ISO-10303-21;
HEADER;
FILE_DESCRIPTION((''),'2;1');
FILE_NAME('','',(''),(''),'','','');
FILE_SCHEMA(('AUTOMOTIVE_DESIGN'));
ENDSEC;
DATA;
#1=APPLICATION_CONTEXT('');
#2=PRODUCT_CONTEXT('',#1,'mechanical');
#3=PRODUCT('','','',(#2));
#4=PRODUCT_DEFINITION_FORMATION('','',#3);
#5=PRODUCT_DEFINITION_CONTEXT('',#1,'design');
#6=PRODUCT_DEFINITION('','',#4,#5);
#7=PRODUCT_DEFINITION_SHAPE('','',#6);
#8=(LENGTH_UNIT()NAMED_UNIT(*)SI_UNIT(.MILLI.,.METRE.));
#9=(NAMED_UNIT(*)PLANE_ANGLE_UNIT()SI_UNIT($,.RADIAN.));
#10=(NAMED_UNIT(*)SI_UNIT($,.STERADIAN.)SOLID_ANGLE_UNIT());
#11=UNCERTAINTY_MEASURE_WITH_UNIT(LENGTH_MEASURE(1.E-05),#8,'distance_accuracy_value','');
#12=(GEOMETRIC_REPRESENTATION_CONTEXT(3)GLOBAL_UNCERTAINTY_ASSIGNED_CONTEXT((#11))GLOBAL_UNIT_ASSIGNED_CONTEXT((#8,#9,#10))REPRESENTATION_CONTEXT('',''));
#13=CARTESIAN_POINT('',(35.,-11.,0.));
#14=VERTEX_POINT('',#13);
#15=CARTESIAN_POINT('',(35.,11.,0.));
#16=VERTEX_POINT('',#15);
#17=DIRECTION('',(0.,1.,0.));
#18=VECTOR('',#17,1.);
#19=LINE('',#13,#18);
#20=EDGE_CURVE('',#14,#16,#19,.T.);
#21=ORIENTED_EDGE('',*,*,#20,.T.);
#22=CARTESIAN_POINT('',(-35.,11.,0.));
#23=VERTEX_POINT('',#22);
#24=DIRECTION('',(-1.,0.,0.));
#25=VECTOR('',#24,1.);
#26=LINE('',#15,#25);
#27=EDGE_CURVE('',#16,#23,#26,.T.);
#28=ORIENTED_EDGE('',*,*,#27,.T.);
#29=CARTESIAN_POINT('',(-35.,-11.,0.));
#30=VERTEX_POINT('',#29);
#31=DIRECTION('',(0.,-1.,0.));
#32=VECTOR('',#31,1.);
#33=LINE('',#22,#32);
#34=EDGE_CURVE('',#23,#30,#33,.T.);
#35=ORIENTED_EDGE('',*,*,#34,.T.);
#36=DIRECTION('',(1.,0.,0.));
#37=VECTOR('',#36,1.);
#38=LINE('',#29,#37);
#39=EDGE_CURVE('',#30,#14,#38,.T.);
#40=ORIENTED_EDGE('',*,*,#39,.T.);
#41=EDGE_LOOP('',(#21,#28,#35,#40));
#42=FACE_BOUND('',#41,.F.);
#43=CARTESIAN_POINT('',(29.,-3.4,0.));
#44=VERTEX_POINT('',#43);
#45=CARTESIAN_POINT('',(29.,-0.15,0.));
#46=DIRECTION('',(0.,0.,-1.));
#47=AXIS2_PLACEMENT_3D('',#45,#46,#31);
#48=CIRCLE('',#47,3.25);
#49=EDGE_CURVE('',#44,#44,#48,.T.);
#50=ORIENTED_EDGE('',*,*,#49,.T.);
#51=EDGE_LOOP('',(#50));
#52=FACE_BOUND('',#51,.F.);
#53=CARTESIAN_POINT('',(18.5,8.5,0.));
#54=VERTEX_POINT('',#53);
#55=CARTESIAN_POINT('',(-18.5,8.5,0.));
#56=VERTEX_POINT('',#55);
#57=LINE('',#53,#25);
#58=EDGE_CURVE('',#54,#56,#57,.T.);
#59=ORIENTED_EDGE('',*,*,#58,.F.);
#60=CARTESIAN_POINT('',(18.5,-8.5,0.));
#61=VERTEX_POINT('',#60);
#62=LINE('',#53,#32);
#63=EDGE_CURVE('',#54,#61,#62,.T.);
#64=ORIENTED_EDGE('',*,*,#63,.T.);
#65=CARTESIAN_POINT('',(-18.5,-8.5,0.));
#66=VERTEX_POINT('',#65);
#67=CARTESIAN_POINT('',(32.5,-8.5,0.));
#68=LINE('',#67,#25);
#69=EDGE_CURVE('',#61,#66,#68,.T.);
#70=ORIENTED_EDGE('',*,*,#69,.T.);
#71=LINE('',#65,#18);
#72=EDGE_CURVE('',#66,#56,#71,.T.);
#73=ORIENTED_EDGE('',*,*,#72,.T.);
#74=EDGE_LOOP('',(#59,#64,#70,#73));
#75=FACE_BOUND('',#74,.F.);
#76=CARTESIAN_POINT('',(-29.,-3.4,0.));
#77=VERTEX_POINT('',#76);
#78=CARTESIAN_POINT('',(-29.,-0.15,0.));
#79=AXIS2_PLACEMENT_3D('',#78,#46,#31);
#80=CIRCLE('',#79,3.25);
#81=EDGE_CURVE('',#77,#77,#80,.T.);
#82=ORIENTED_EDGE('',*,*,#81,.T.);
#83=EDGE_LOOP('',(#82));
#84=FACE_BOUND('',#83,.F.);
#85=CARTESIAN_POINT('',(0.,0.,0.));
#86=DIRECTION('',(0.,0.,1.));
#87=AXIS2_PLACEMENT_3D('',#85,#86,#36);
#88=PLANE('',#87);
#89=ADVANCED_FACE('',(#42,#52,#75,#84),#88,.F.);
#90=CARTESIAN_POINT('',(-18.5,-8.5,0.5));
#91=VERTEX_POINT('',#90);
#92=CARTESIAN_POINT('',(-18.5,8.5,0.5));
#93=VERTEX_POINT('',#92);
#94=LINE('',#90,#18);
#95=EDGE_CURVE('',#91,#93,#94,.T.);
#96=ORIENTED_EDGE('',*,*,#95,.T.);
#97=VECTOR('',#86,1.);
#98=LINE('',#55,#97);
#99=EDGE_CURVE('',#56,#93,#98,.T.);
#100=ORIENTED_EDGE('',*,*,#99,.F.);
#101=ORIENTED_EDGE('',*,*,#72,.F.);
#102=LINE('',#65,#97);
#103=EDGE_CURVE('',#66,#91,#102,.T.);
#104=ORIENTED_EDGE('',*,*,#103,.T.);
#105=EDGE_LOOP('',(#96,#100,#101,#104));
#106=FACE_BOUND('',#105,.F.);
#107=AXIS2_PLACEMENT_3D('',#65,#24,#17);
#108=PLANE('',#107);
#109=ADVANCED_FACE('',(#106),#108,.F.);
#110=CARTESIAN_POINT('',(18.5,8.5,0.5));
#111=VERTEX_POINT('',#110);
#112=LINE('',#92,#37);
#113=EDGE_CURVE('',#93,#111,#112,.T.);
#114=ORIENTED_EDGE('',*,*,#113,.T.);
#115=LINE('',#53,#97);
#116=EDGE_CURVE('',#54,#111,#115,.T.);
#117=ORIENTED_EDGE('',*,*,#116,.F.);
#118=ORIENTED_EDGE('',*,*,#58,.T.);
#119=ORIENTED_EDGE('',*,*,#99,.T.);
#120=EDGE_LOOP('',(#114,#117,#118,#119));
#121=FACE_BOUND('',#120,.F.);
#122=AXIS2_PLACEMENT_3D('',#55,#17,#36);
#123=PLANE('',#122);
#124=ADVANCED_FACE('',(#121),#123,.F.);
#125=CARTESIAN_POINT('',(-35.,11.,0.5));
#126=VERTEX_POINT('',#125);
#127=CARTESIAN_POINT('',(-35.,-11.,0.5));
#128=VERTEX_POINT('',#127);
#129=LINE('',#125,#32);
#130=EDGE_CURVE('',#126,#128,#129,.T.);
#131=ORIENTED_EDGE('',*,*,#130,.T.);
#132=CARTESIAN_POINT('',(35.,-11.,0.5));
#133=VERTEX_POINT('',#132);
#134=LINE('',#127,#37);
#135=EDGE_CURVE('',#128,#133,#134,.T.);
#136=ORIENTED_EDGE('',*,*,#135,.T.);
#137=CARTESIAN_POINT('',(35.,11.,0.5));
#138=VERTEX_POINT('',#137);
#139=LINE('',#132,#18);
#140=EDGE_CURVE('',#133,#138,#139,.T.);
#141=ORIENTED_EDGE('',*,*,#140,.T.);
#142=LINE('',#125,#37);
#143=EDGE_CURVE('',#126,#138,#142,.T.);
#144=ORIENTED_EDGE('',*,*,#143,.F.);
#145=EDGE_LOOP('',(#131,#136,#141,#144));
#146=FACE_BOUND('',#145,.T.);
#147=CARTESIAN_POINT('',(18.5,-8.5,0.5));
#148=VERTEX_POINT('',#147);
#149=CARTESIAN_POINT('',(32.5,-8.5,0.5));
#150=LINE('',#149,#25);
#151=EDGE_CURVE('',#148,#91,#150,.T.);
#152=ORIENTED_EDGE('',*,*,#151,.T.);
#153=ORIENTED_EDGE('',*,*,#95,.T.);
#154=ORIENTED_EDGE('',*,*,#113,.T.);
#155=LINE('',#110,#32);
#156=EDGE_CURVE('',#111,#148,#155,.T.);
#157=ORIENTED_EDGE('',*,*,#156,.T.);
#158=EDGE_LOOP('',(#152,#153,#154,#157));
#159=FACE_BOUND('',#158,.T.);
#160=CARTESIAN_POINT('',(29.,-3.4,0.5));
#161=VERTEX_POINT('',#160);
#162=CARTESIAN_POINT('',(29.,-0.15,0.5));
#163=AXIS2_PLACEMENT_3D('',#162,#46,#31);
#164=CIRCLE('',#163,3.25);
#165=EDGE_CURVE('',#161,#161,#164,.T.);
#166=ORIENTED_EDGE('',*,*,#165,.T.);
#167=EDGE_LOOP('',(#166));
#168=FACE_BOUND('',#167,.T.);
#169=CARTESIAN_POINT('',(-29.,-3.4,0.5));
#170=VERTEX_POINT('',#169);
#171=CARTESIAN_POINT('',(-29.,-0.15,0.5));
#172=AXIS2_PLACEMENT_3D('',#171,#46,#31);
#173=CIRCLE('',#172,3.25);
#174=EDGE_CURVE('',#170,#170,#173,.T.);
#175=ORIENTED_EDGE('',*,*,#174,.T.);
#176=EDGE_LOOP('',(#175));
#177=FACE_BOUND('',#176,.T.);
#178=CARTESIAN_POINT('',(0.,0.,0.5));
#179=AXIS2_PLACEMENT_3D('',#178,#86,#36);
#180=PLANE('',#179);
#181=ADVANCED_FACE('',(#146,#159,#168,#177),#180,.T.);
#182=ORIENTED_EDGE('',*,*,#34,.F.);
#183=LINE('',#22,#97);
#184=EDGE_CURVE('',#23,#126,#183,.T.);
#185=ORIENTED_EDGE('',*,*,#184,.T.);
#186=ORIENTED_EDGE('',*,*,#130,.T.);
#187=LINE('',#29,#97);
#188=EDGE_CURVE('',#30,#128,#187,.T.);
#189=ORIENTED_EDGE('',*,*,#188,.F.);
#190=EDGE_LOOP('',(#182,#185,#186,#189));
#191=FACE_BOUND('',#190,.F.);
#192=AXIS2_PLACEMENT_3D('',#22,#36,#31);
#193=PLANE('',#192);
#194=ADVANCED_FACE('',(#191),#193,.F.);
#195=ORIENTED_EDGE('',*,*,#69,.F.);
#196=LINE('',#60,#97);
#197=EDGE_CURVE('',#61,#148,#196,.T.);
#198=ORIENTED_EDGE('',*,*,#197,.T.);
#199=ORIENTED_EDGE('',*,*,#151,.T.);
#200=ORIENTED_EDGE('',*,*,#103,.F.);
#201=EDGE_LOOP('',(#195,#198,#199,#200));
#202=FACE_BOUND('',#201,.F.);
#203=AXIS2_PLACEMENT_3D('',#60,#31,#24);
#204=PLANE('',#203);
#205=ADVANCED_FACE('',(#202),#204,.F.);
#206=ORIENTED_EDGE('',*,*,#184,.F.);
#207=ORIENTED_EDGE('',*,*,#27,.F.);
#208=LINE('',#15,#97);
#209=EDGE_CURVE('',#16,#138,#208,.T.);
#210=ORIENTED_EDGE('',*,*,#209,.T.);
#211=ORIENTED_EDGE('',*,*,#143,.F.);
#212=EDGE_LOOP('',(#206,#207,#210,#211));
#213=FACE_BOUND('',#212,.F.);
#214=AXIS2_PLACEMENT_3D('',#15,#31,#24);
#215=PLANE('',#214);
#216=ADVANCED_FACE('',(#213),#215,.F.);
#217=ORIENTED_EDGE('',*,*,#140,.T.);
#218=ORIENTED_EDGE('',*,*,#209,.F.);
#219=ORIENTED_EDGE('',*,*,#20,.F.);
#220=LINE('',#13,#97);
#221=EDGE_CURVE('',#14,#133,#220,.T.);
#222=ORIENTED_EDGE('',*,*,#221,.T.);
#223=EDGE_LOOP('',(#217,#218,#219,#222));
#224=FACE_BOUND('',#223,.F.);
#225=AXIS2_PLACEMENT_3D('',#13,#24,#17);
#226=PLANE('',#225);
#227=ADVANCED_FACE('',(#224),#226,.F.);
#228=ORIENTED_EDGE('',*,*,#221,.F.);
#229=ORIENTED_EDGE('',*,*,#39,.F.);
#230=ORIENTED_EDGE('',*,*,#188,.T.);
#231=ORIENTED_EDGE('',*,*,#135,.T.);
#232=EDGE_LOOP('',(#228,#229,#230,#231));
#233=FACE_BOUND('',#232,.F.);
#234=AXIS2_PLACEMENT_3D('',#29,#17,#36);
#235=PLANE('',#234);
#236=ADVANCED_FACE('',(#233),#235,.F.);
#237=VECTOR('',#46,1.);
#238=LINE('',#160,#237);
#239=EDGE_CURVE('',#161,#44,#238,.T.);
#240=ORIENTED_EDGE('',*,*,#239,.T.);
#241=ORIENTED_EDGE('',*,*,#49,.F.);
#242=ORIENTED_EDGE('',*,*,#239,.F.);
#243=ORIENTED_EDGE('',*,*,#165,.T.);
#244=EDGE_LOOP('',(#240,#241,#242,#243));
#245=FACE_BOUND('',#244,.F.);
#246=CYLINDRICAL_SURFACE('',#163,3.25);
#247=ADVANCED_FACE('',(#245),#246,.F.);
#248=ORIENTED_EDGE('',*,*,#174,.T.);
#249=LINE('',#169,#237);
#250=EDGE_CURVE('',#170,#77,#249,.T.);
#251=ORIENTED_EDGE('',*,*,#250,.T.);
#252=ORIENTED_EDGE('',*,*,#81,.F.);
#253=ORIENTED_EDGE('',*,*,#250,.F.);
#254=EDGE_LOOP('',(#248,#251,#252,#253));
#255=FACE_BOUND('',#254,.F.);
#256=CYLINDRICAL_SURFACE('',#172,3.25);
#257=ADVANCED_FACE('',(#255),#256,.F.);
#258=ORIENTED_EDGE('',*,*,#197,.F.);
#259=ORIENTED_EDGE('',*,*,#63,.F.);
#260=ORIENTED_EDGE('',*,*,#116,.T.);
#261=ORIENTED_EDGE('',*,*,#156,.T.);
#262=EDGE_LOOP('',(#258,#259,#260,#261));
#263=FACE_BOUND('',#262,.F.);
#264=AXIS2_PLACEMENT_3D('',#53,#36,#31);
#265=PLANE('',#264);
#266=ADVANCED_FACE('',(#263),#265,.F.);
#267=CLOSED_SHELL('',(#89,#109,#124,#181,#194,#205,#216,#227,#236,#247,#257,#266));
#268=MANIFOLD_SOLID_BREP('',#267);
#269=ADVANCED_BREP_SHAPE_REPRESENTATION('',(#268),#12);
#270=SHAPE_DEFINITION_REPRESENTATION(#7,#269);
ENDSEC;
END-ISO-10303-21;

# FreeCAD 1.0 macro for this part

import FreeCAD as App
import Part
import Sketcher
from FreeCAD import Vector
Q = App.Units.Quantity


def add_polygon(sketch, points):
    """Adds a closed chain of lines whose ends are joined by coincident constraints."""
    first, n = sketch.GeometryCount, len(points)
    for a, b in zip(points, points[1:] + points[:1]):
        sketch.addGeometry(Part.LineSegment(App.Vector(*a, 0), App.Vector(*b, 0)), False)
    for i in range(n):
        sketch.addConstraint(Sketcher.Constraint("Coincident", first + i, 2, first + (i + 1) % n, 1))

doc = App.newDocument("Part")
body = doc.addObject("PartDesign::Body", "Body")

# Sketch on XY plane
sketch1 = body.newObject("Sketcher::SketchObject", "Sketch")
sketch1.AttachmentSupport = (doc.getObject("XY_Plane"), [""])
sketch1.MapMode = "FlatFace"
add_polygon(sketch1, [(35, 11), (-35, 11), (-35, -11), (35, -11)])  # lines 0-3
add_polygon(sketch1, [(-18, 8), (18, 8), (18, -8), (-18, -8)])  # lines 4-7
sketch1.addConstraint([
    Sketcher.Constraint("Horizontal", 0),
    Sketcher.Constraint("Vertical", 1),
    Sketcher.Constraint("Horizontal", 2),
    Sketcher.Constraint("Vertical", 3),
    Sketcher.Constraint("Horizontal", 4),
    Sketcher.Constraint("Vertical", 5),
    Sketcher.Constraint("Horizontal", 6),
    Sketcher.Constraint("Vertical", 7),
    Sketcher.Constraint("Symmetric", 0, 2, 2, 2, -1, 1),
    Sketcher.Constraint("Symmetric", 4, 2, 6, 2, -1, 1),
    Sketcher.Constraint("DistanceX", 0, 2, 0, 1, Q("70 mm")),
    Sketcher.Constraint("DistanceY", 1, 2, 1, 1, Q("22 mm")),
    Sketcher.Constraint("DistanceY", 4, 2, 3, 2, Q("2.5 mm")),
    Sketcher.Constraint("DistanceX", 4, 1, 4, 2, Q("37 mm")),
])
pad1 = body.newObject("PartDesign::Pad", "Pad")
pad1.Profile = sketch1
pad1.Length = 0.5

# Sketch on XY plane
sketch2 = body.newObject("Sketcher::SketchObject", "Sketch001")
sketch2.AttachmentSupport = (doc.getObject("XY_Plane"), [""])
sketch2.MapMode = "FlatFace"
sketch2.AttachmentOffset = App.Placement(Vector(0, 0, 0.5), App.Rotation())
sketch2.addGeometry([
    Part.Circle(Vector(-29, -0.1, 0), Vector(0, 0, 1), 1.8),
    Part.Circle(Vector(29, -0.1, 0), Vector(0, 0, 1), 1.8),
], False)
sketch2.addConstraint([
    Sketcher.Constraint("Equal", 0, 1),
    Sketcher.Constraint("Symmetric", 0, 3, 1, 3, -2),
    Sketcher.Constraint("Diameter", 0, Q("3.5 mm")),
    Sketcher.Constraint("DistanceX", 0, 3, -1, 1, Q("29 mm")),
    Sketcher.Constraint("DistanceY", 0, 3, -1, 1, Q("0.15 mm")),
])
doc.recompute()
hole = body.newObject("PartDesign::Hole", "Hole")
hole.Profile = sketch2
hole.ThreadType = "None"
hole.Diameter = 3.5
hole.DepthType = "ThroughAll"
hole.HoleCutType = "Counterbore"
hole.HoleCutDiameter = 6.5
hole.HoleCutDepth = 2

doc.recompute()
